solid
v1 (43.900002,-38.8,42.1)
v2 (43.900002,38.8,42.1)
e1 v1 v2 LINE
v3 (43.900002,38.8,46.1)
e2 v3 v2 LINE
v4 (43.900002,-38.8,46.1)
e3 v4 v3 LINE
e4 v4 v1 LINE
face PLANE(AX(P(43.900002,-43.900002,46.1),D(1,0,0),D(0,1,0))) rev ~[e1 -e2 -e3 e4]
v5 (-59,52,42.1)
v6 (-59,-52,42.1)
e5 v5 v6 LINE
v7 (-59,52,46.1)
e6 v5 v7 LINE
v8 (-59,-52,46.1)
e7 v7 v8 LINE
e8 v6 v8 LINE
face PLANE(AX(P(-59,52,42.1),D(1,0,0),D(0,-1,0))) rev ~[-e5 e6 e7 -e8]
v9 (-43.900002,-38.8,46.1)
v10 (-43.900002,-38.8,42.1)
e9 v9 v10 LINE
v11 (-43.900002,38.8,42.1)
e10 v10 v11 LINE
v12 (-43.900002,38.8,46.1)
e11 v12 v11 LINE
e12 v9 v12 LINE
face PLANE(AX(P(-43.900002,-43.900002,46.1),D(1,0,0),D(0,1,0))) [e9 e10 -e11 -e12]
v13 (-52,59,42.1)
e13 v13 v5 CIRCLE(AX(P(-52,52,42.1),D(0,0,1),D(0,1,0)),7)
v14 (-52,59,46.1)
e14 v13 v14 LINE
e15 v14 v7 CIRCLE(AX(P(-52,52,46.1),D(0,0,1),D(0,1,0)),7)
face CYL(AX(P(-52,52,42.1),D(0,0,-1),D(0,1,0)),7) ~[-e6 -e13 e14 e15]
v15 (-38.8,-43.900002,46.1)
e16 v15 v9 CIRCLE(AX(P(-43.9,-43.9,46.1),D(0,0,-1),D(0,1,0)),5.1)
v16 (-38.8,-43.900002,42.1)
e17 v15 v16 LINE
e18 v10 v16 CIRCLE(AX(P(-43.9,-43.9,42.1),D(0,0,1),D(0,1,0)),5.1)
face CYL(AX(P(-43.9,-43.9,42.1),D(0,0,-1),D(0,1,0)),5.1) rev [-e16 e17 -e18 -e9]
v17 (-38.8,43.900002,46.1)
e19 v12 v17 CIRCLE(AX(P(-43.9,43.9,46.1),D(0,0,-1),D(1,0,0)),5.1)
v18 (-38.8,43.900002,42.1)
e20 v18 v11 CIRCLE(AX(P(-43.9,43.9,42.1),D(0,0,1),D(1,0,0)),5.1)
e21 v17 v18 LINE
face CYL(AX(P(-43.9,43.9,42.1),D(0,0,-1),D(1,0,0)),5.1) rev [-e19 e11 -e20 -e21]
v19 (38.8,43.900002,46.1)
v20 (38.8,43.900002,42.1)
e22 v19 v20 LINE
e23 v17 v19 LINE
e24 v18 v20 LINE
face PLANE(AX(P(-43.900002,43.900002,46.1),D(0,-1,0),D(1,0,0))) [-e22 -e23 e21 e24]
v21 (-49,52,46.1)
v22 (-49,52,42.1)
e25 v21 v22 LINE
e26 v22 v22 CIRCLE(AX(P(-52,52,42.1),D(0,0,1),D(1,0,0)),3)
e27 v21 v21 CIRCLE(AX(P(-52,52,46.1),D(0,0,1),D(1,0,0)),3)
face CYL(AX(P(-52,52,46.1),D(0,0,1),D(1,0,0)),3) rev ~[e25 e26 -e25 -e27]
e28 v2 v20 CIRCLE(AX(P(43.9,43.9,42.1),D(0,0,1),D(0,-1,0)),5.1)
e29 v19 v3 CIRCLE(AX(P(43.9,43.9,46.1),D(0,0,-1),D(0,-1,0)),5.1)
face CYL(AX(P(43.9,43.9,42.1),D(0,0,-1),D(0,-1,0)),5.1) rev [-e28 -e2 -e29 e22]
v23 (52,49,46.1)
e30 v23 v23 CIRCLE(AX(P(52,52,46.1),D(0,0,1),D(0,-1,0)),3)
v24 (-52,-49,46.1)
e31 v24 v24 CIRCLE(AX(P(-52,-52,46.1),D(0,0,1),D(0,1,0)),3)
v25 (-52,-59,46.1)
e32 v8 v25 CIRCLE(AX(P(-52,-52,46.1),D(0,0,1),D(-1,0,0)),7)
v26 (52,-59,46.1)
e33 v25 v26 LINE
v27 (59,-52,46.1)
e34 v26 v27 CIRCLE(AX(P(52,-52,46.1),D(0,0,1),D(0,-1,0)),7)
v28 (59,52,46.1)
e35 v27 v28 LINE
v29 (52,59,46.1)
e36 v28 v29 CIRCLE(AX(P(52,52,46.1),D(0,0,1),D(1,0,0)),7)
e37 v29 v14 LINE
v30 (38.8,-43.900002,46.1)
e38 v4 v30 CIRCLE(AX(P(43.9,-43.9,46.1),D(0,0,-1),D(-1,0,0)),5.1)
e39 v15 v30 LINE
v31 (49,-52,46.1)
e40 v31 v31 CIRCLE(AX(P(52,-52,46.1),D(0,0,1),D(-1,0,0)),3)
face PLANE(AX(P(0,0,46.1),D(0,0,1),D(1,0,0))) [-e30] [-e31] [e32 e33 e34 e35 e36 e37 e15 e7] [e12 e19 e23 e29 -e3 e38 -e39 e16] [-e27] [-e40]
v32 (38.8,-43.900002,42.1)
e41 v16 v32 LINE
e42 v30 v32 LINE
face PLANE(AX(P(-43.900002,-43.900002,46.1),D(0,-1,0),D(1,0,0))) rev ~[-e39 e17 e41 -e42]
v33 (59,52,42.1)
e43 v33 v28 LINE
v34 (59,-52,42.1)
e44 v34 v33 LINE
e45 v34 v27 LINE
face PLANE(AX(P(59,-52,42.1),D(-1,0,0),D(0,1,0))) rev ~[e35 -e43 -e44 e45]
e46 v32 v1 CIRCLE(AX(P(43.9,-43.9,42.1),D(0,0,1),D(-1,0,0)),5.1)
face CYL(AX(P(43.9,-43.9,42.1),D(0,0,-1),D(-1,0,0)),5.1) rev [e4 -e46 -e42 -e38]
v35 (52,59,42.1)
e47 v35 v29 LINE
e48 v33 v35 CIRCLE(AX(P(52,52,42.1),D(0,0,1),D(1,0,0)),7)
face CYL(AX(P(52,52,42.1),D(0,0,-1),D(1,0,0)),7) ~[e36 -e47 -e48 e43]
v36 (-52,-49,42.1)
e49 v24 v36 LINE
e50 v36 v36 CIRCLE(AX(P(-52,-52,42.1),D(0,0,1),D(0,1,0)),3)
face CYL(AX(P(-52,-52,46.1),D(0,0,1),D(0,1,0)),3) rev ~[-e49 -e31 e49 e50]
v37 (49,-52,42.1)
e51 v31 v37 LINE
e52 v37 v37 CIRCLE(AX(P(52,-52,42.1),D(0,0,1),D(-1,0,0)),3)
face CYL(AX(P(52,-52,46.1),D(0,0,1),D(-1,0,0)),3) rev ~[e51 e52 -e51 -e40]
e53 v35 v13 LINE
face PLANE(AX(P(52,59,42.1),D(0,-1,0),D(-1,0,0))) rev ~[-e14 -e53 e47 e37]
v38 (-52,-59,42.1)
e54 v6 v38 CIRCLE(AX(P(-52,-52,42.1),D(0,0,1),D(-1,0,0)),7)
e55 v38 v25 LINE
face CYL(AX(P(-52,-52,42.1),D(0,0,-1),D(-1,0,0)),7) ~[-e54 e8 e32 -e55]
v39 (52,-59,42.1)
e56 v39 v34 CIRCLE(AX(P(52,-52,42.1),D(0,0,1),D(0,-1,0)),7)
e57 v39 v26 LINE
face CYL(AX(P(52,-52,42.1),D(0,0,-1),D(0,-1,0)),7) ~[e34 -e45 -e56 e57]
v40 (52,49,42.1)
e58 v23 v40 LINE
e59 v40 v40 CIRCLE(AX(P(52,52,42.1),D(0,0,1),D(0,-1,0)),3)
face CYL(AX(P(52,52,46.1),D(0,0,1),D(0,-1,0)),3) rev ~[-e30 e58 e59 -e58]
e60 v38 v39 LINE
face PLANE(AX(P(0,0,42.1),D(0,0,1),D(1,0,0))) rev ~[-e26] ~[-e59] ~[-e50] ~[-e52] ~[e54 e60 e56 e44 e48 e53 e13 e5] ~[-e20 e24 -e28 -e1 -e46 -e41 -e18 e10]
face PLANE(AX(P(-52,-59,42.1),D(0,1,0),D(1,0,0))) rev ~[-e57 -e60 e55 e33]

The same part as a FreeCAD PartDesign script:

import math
import FreeCAD as App
import Part
import Sketcher

V = App.Vector

doc = App.newDocument("Part")
body = doc.addObject("PartDesign::Body", "Body")

sketch1 = body.newObject("Sketcher::SketchObject", "Sketch")
sketch1.AttachmentSupport = (doc.getObject("XY_Plane"), [""])
sketch1.MapMode = "FlatFace"
sketch1.addGeometry([
    Part.LineSegment(V(-59, 52, 0), V(-59, -52, 0)),
    Part.ArcOfCircle(Part.Circle(V(-52, -52, 0), V(0, 0, 1), 7), math.radians(180), math.radians(270)),
    Part.LineSegment(V(-52, -59, 0), V(52, -59, 0)),
    Part.ArcOfCircle(Part.Circle(V(52, -52, 0), V(0, 0, 1), 7), math.radians(-90), math.radians(0)),
    Part.LineSegment(V(59, -52, 0), V(59, 52, 0)),
    Part.ArcOfCircle(Part.Circle(V(52, 52, 0), V(0, 0, 1), 7), math.radians(0), math.radians(90)),
    Part.LineSegment(V(52, 59, 0), V(-52, 59, 0)),
    Part.ArcOfCircle(Part.Circle(V(-52, 52, 0), V(0, 0, 1), 7), math.radians(90), math.radians(180)),
], False)
sketch1.addConstraint([
    Sketcher.Constraint("Tangent", 0, 2, 1, 1),
    Sketcher.Constraint("Tangent", 1, 2, 2, 1),
    Sketcher.Constraint("Tangent", 2, 2, 3, 1),
    Sketcher.Constraint("Tangent", 3, 2, 4, 1),
    Sketcher.Constraint("Tangent", 4, 2, 5, 1),
    Sketcher.Constraint("Tangent", 5, 2, 6, 1),
    Sketcher.Constraint("Tangent", 6, 2, 7, 1),
    Sketcher.Constraint("Tangent", 7, 2, 0, 1),
    Sketcher.Constraint("Vertical", 0),
    Sketcher.Constraint("Horizontal", 2),
    Sketcher.Constraint("Vertical", 4),
    Sketcher.Constraint("Horizontal", 6),
    Sketcher.Constraint("Equal", 1, 3),
    Sketcher.Constraint("Equal", 3, 5),
    Sketcher.Constraint("Equal", 5, 7),
    Sketcher.Constraint("Symmetric", 1, 3, 5, 3, -1, 1),
    Sketcher.Constraint("Equal", 6, 0),
    Sketcher.Constraint("Radius", 1, 7.0),
    Sketcher.Constraint("DistanceX", 2, 1, 2, 2, 104.0),
])
pad1 = body.newObject("PartDesign::Pad", "Pad")
pad1.Profile = sketch1
pad1.Length = 4

sketch2 = body.newObject("Sketcher::SketchObject", "Sketch001")
sketch2.AttachmentSupport = (doc.getObject("XY_Plane"), [""])
sketch2.MapMode = "FlatFace"
sketch2.addGeometry(Part.Circle(V(-43.9, 43.9, 0), V(0, 0, 1), 5.1), False)
sketch2.addConstraint([
    Sketcher.Constraint("Diameter", 0, 10.2),
    Sketcher.Constraint("DistanceX", 0, 3, -1, 1, 43.9),
    Sketcher.Constraint("DistanceY", -1, 1, 0, 3, 43.9),
])
pocket1 = body.newObject("PartDesign::Pocket", "Pocket")
pocket1.Profile = sketch2
pocket1.Length = 5
pocket1.Reversed = True
doc.recompute()

polarpattern = body.newObject("PartDesign::PolarPattern", "PolarPattern")
polarpattern.Originals = [pocket1]
polarpattern.Axis = (doc.getObject("Z_Axis"), [""])
polarpattern.Angle = 360
polarpattern.Occurrences = 4
body.Tip = polarpattern

sketch3 = body.newObject("Sketcher::SketchObject", "Sketch002")
sketch3.AttachmentSupport = (doc.getObject("XY_Plane"), [""])
sketch3.MapMode = "FlatFace"
sketch3.AttachmentOffset = App.Placement(V(0, 0, 4), App.Rotation())
sketch3.addGeometry([
    Part.LineSegment(V(-43.900002, 43.900002, 0), V(-43.900002, -43.900002, 0)),
    Part.LineSegment(V(-43.900002, -43.900002, 0), V(43.900002, -43.900002, 0)),
    Part.LineSegment(V(43.900002, -43.900002, 0), V(43.900002, 43.900002, 0)),
    Part.LineSegment(V(43.900002, 43.900002, 0), V(-43.900002, 43.900002, 0)),
], False)
sketch3.addConstraint([
    Sketcher.Constraint("Coincident", 0, 2, 1, 1),
    Sketcher.Constraint("Coincident", 1, 2, 2, 1),
    Sketcher.Constraint("Coincident", 2, 2, 3, 1),
    Sketcher.Constraint("Coincident", 3, 2, 0, 1),
    Sketcher.Constraint("Vertical", 0),
    Sketcher.Constraint("Horizontal", 1),
    Sketcher.Constraint("Vertical", 2),
    Sketcher.Constraint("Horizontal", 3),
    Sketcher.Constraint("Symmetric", 0, 2, 2, 2, -1, 1),
    Sketcher.Constraint("Equal", 3, 0),
    Sketcher.Constraint("DistanceX", 1, 1, 1, 2, 87.800004),
])
pocket2 = body.newObject("PartDesign::Pocket", "Pocket001")
pocket2.Profile = sketch3
pocket2.Length = 5

sketch4 = body.newObject("Sketcher::SketchObject", "Sketch003")
sketch4.AttachmentSupport = (doc.getObject("XY_Plane"), [""])
sketch4.MapMode = "FlatFace"
sketch4.AttachmentOffset = App.Placement(V(0, 0, 4), App.Rotation())
sketch4.addGeometry(Part.Circle(V(-52, 52, 0), V(0, 0, 1), 3), False)
sketch4.addConstraint([
    Sketcher.Constraint("Diameter", 0, 6.0),
    Sketcher.Constraint("DistanceX", 0, 3, -1, 1, 52.0),
    Sketcher.Constraint("DistanceY", -1, 1, 0, 3, 52.0),
])
pocket3 = body.newObject("PartDesign::Pocket", "Pocket002")
pocket3.Profile = sketch4
pocket3.Type = "ThroughAll"
doc.recompute()

polarpattern2 = body.newObject("PartDesign::PolarPattern", "PolarPattern001")
polarpattern2.Originals = [pocket3]
polarpattern2.Axis = (doc.getObject("Z_Axis"), [""])
polarpattern2.Angle = 360
polarpattern2.Occurrences = 4
body.Tip = polarpattern2
body2 = doc.addObject("PartDesign::Body", "Body001")
doc.recompute()

body.Placement = App.Placement(V(0, 0, 42.1), App.Rotation(V(0, 0, 1), 0))
boolean = body2.newObject("PartDesign::Boolean", "Boolean")
boolean.Type = "Fuse"
boolean.addObjects([body])

doc.recompute()
